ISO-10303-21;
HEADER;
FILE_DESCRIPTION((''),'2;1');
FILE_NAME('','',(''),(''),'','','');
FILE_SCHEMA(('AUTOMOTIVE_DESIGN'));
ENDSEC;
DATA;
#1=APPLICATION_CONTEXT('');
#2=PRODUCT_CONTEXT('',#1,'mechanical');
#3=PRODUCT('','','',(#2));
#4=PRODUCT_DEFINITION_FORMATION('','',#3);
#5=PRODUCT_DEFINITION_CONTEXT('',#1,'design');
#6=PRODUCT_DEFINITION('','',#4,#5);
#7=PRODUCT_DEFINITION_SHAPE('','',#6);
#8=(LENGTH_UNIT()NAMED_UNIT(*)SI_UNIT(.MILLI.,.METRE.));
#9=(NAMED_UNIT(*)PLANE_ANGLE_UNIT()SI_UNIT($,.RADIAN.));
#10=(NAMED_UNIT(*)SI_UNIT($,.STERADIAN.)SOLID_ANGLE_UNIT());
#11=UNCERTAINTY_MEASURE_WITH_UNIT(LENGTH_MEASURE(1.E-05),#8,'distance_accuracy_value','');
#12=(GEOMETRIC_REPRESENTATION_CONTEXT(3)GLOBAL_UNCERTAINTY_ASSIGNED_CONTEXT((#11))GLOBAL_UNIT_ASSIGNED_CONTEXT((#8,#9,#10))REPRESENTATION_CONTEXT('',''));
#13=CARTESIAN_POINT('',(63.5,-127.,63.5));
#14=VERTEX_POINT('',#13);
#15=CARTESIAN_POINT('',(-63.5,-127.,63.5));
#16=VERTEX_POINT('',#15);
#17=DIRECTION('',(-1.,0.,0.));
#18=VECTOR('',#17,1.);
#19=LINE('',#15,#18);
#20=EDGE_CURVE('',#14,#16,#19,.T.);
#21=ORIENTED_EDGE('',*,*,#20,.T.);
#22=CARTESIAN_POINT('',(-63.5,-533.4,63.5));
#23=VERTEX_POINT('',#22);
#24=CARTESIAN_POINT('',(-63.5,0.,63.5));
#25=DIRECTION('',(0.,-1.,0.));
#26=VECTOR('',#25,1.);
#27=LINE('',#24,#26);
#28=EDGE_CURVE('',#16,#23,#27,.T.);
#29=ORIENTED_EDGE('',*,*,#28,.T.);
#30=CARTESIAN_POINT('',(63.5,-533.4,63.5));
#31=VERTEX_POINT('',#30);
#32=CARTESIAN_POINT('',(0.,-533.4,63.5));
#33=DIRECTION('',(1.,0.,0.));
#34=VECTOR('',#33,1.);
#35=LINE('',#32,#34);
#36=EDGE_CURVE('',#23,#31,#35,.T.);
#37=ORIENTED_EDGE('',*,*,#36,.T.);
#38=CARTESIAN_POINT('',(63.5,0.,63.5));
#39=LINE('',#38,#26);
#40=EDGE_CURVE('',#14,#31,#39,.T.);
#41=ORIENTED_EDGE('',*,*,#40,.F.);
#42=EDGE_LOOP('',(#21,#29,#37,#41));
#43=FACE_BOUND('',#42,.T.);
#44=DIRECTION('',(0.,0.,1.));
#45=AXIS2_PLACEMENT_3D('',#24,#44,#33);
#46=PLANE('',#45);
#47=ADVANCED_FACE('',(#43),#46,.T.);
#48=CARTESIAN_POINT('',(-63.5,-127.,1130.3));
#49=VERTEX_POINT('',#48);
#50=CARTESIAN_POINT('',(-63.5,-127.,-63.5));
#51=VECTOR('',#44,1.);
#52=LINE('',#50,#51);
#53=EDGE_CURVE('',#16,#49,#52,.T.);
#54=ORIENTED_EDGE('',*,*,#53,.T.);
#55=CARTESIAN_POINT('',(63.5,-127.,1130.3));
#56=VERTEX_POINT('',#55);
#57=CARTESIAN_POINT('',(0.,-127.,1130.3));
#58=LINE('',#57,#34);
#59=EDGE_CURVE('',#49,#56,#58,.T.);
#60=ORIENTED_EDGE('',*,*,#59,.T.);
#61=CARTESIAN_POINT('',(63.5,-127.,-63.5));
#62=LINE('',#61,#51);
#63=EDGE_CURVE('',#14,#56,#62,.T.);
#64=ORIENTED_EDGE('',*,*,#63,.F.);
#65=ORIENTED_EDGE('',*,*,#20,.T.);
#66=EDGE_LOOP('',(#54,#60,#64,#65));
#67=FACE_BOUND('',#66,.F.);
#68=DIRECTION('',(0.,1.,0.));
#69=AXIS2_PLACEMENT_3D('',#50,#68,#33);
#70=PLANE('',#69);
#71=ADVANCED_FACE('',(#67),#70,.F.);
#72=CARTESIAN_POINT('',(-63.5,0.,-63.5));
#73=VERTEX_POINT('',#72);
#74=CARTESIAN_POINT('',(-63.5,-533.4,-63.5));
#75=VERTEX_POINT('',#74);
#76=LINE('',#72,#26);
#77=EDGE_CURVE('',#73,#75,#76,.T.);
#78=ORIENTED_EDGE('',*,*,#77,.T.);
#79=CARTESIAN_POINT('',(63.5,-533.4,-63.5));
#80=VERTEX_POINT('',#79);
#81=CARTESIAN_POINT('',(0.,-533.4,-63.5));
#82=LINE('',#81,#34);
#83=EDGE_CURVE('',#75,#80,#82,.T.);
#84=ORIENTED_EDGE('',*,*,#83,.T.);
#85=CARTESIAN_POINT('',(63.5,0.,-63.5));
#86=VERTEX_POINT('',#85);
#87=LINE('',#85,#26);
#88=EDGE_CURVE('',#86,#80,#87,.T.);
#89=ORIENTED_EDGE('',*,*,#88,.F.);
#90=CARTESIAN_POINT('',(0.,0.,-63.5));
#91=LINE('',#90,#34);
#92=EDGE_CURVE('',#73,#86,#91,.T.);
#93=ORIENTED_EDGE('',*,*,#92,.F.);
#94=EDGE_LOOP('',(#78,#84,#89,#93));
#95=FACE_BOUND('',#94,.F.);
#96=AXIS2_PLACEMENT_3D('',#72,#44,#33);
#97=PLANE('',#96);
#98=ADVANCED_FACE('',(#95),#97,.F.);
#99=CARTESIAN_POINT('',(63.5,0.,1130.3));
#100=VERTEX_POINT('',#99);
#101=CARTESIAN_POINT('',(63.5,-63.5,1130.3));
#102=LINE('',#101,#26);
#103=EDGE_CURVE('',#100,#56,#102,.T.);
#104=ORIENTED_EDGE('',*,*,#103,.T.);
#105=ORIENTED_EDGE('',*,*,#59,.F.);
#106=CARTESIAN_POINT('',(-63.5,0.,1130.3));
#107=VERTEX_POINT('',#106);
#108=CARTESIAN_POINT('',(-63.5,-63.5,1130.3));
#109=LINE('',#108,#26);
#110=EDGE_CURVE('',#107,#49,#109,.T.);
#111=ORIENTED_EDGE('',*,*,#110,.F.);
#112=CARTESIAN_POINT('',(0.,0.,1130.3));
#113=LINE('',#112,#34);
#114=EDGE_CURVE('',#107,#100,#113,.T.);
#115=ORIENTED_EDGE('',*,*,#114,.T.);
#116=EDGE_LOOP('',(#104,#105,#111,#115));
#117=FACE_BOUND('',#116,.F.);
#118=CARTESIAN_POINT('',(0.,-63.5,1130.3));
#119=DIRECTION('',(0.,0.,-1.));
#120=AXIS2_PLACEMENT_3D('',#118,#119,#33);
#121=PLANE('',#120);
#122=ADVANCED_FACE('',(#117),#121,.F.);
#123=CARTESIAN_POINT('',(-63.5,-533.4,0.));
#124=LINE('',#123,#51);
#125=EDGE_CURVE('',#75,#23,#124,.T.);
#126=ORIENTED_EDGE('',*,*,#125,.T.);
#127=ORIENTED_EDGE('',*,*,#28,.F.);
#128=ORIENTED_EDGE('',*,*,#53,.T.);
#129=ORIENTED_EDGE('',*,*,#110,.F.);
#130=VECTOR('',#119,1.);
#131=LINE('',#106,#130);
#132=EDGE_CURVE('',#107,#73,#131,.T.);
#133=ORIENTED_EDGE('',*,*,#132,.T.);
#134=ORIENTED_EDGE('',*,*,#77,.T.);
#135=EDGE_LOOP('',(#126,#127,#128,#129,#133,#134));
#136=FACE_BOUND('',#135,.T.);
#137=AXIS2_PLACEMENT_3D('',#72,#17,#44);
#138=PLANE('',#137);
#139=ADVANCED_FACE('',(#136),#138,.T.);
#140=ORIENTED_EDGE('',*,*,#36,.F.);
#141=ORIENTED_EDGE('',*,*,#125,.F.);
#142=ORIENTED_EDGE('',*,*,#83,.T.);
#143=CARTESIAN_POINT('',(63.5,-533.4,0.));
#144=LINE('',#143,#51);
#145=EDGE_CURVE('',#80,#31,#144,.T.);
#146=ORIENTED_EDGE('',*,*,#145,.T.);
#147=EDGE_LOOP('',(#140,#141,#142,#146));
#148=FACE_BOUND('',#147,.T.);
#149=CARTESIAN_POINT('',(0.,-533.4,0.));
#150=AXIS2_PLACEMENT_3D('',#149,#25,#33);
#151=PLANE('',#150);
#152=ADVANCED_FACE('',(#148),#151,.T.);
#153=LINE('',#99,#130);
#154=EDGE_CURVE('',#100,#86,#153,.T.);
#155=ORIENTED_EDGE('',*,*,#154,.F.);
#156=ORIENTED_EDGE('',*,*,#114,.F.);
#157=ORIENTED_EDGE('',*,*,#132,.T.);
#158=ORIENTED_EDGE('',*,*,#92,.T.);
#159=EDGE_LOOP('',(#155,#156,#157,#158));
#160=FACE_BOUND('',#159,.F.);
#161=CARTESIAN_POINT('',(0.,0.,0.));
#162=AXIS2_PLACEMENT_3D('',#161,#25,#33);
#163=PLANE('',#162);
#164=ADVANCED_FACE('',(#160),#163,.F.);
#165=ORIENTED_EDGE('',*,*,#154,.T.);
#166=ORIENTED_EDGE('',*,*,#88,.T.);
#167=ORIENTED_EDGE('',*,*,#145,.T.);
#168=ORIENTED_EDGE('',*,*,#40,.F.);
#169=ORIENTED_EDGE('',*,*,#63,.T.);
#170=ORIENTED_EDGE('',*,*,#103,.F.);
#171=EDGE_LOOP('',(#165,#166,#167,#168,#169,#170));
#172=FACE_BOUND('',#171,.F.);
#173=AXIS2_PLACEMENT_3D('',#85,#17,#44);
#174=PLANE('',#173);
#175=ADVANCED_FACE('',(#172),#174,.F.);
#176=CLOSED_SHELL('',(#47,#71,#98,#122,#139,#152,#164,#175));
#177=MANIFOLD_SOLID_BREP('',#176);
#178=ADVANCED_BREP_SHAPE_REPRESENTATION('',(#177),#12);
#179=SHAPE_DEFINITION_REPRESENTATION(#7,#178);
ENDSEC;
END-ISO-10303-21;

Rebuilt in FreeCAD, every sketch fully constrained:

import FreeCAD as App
import Part
import Sketcher
from FreeCAD import Vector
Q = App.Units.Quantity


def add_polygon(sketch, points):
    """Adds a closed chain of lines whose ends are joined by coincident constraints."""
    first, n = sketch.GeometryCount, len(points)
    for a, b in zip(points, points[1:] + points[:1]):
        sketch.addGeometry(Part.LineSegment(App.Vector(*a, 0), App.Vector(*b, 0)), False)
    for i in range(n):
        sketch.addConstraint(Sketcher.Constraint("Coincident", first + i, 2, first + (i + 1) % n, 1))

doc = App.newDocument("Part")
params = doc.addObject("Spreadsheet::Sheet", "Params")
for row, (alias, value) in enumerate([
    ("sketch1_width", "5 in"),
    ("pad1_length", "21 in"),
    ("sketch2_width", "5 in"),
    ("pad2_length", "47 in"),
], start=1):
    params.set(f"A{row}", alias)
    params.set(f"B{row}", "=" + value)
    params.setAlias(f"B{row}", alias)

body = doc.addObject("PartDesign::Body", "Body")

# Sketch on XZ plane
sketch1 = body.newObject("Sketcher::SketchObject", "Sketch")
sketch1.AttachmentSupport = (doc.getObject("XZ_Plane"), [""])
sketch1.MapMode = "FlatFace"
add_polygon(sketch1, [(-64, 64), (-64, -64), (64, -64), (64, 64)])  # lines 0-3
sketch1.addConstraint(Sketcher.Constraint("Vertical", 0))
sketch1.addConstraint(Sketcher.Constraint("Horizontal", 1))
sketch1.addConstraint(Sketcher.Constraint("Vertical", 2))
sketch1.addConstraint(Sketcher.Constraint("Horizontal", 3))
sketch1.addConstraint(Sketcher.Constraint("Symmetric", 0, 2, 2, 2, -1, 1))
sketch1.addConstraint(Sketcher.Constraint("Equal", 3, 0))
sketch1.addConstraint(Sketcher.Constraint("DistanceX", 1, 1, 1, 2, Q("5 in")))
sketch1.setExpression("Constraints[10]", "Params.sketch1_width")
pad1 = body.newObject("PartDesign::Pad", "Pad")
pad1.Profile = sketch1
pad1.setExpression("Length", "Params.pad1_length")

# Sketch on XY plane
sketch2 = body.newObject("Sketcher::SketchObject", "Sketch001")
sketch2.AttachmentSupport = (doc.getObject("XY_Plane"), [""])
sketch2.MapMode = "FlatFace"
sketch2.AttachmentOffset = App.Placement(Vector(0, 0, -2.5 * 25.4), App.Rotation())
add_polygon(sketch2, [(-64, -127), (-64, 0), (64, 0), (64, -127)])  # lines 0-3
sketch2.addConstraint(Sketcher.Constraint("Vertical", 0))
sketch2.addConstraint(Sketcher.Constraint("Horizontal", 1))
sketch2.addConstraint(Sketcher.Constraint("Vertical", 2))
sketch2.addConstraint(Sketcher.Constraint("Horizontal", 3))
sketch2.addConstraint(Sketcher.Constraint("Symmetric", 0, 2, 1, 2, -1, 1))
sketch2.addConstraint(Sketcher.Constraint("Equal", 3, 0))
sketch2.addConstraint(Sketcher.Constraint("DistanceX", 1, 1, 1, 2, Q("5 in")))
sketch2.setExpression("Constraints[10]", "Params.sketch2_width")
pad2 = body.newObject("PartDesign::Pad", "Pad001")
pad2.Profile = sketch2
pad2.setExpression("Length", "Params.pad2_length")

doc.recompute()
